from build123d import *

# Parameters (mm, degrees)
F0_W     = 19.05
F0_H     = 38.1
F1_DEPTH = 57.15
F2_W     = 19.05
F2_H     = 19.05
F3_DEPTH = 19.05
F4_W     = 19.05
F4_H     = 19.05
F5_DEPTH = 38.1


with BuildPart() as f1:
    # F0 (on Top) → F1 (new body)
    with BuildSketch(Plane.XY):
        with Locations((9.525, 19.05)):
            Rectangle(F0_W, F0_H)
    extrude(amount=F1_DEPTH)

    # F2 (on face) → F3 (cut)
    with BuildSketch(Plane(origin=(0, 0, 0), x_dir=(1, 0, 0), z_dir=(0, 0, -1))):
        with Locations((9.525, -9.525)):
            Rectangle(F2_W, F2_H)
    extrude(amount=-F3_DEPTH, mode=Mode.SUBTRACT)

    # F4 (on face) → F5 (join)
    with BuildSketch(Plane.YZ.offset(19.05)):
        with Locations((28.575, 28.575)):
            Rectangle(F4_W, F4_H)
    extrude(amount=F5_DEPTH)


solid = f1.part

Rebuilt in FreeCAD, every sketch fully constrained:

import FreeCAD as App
import Part
import Sketcher
Q = App.Units.Quantity

doc = App.newDocument("Part")
params = doc.addObject("Spreadsheet::Sheet", "Params")
for row, (alias, value) in enumerate([
    ("sketch1_height", "1.5 in"),
    ("sketch1_width", "0.75 in"),
    ("pad1_length", "2.25 in"),
    ("sketch2_width", "0.75 in"),
    ("pocket1_length", "0.75 in"),
    ("sketch3_width", "0.75 in"),
    ("pad2_length", "1.5 in"),
], start=1):
    params.set(f"A{row}", alias)
    params.set(f"B{row}", "=" + value)
    params.setAlias(f"B{row}", alias)

body = doc.addObject("PartDesign::Body", "Body")

sketch1 = body.newObject("Sketcher::SketchObject", "Sketch")
sketch1.AttachmentSupport = (doc.getObject("XY_Plane"), [""])
sketch1.MapMode = "FlatFace"
sketch1.addGeometry([
    Part.LineSegment(App.Vector(0, 38, 0), App.Vector(0, 0, 0)),
    Part.LineSegment(App.Vector(0, 0, 0), App.Vector(19, 0, 0)),
    Part.LineSegment(App.Vector(19, 0, 0), App.Vector(19, 38, 0)),
    Part.LineSegment(App.Vector(19, 38, 0), App.Vector(0, 38, 0)),
], False)
sketch1.addConstraint([
    Sketcher.Constraint("Coincident", 0, 2, 1, 1),
    Sketcher.Constraint("Coincident", 1, 2, 2, 1),
    Sketcher.Constraint("Coincident", 2, 2, 3, 1),
    Sketcher.Constraint("Coincident", 3, 2, 0, 1),
    Sketcher.Constraint("Vertical", 0),
    Sketcher.Constraint("Horizontal", 1),
    Sketcher.Constraint("Vertical", 2),
    Sketcher.Constraint("Horizontal", 3),
    Sketcher.Constraint("Coincident", 0, 2, -1, 1),
    Sketcher.Constraint("DistanceY", 0, 2, 0, 1, Q("1.5 in")),
    Sketcher.Constraint("DistanceX", 1, 1, 1, 2, Q("0.75 in")),
])
sketch1.setExpression("Constraints[9]", "Params.sketch1_height")
sketch1.setExpression("Constraints[10]", "Params.sketch1_width")
pad1 = body.newObject("PartDesign::Pad", "Pad")
pad1.Profile = sketch1
pad1.setExpression("Length", "Params.pad1_length")

sketch2 = body.newObject("Sketcher::SketchObject", "Sketch001")
sketch2.AttachmentSupport = (doc.getObject("XY_Plane"), [""])
sketch2.MapMode = "FlatFace"
sketch2.addGeometry([
    Part.LineSegment(App.Vector(0, 0, 0), App.Vector(0, 19, 0)),
    Part.LineSegment(App.Vector(0, 19, 0), App.Vector(19, 19, 0)),
    Part.LineSegment(App.Vector(19, 19, 0), App.Vector(19, 0, 0)),
    Part.LineSegment(App.Vector(19, 0, 0), App.Vector(0, 0, 0)),
], False)
sketch2.addConstraint([
    Sketcher.Constraint("Coincident", 0, 2, 1, 1),
    Sketcher.Constraint("Coincident", 1, 2, 2, 1),
    Sketcher.Constraint("Coincident", 2, 2, 3, 1),
    Sketcher.Constraint("Coincident", 3, 2, 0, 1),
    Sketcher.Constraint("Vertical", 0),
    Sketcher.Constraint("Horizontal", 1),
    Sketcher.Constraint("Vertical", 2),
    Sketcher.Constraint("Horizontal", 3),
    Sketcher.Constraint("Coincident", 3, 2, -1, 1),
    Sketcher.Constraint("Equal", 3, 0),
    Sketcher.Constraint("DistanceX", 1, 1, 1, 2, Q("0.75 in")),
])
sketch2.setExpression("Constraints[10]", "Params.sketch2_width")
pocket1 = body.newObject("PartDesign::Pocket", "Pocket")
pocket1.Profile = sketch2
pocket1.setExpression("Length", "Params.pocket1_length")
pocket1.Reversed = True

sketch3 = body.newObject("Sketcher::SketchObject", "Sketch002")
sketch3.AttachmentSupport = (doc.getObject("YZ_Plane"), [""])
sketch3.MapMode = "FlatFace"
sketch3.AttachmentOffset = App.Placement(App.Vector(0, 0, 0.75 * 25.4), App.Rotation())
sketch3.addGeometry([
    Part.LineSegment(App.Vector(19, 38, 0), App.Vector(19, 19, 0)),
    Part.LineSegment(App.Vector(19, 19, 0), App.Vector(38, 19, 0)),
    Part.LineSegment(App.Vector(38, 19, 0), App.Vector(38, 38, 0)),
    Part.LineSegment(App.Vector(38, 38, 0), App.Vector(19, 38, 0)),
], False)
sketch3.addConstraint([
    Sketcher.Constraint("Coincident", 0, 2, 1, 1),
    Sketcher.Constraint("Coincident", 1, 2, 2, 1),
    Sketcher.Constraint("Coincident", 2, 2, 3, 1),
    Sketcher.Constraint("Coincident", 3, 2, 0, 1),
    Sketcher.Constraint("Vertical", 0),
    Sketcher.Constraint("Horizontal", 1),
    Sketcher.Constraint("Vertical", 2),
    Sketcher.Constraint("Horizontal", 3),
    Sketcher.Constraint("Equal", 3, 0),
    Sketcher.Constraint("DistanceX", 1, 1, 1, 2, Q("0.75 in")),
    Sketcher.Constraint("DistanceX", -1, 1, 1, 2, Q("1.5 in")),
    Sketcher.Constraint("DistanceY", -1, 1, 2, 2, Q("1.5 in")),
])
sketch3.setExpression("Constraints[9]", "Params.sketch3_width")
pad2 = body.newObject("PartDesign::Pad", "Pad001")
pad2.Profile = sketch3
pad2.setExpression("Length", "Params.pad2_length")

doc.recompute()
